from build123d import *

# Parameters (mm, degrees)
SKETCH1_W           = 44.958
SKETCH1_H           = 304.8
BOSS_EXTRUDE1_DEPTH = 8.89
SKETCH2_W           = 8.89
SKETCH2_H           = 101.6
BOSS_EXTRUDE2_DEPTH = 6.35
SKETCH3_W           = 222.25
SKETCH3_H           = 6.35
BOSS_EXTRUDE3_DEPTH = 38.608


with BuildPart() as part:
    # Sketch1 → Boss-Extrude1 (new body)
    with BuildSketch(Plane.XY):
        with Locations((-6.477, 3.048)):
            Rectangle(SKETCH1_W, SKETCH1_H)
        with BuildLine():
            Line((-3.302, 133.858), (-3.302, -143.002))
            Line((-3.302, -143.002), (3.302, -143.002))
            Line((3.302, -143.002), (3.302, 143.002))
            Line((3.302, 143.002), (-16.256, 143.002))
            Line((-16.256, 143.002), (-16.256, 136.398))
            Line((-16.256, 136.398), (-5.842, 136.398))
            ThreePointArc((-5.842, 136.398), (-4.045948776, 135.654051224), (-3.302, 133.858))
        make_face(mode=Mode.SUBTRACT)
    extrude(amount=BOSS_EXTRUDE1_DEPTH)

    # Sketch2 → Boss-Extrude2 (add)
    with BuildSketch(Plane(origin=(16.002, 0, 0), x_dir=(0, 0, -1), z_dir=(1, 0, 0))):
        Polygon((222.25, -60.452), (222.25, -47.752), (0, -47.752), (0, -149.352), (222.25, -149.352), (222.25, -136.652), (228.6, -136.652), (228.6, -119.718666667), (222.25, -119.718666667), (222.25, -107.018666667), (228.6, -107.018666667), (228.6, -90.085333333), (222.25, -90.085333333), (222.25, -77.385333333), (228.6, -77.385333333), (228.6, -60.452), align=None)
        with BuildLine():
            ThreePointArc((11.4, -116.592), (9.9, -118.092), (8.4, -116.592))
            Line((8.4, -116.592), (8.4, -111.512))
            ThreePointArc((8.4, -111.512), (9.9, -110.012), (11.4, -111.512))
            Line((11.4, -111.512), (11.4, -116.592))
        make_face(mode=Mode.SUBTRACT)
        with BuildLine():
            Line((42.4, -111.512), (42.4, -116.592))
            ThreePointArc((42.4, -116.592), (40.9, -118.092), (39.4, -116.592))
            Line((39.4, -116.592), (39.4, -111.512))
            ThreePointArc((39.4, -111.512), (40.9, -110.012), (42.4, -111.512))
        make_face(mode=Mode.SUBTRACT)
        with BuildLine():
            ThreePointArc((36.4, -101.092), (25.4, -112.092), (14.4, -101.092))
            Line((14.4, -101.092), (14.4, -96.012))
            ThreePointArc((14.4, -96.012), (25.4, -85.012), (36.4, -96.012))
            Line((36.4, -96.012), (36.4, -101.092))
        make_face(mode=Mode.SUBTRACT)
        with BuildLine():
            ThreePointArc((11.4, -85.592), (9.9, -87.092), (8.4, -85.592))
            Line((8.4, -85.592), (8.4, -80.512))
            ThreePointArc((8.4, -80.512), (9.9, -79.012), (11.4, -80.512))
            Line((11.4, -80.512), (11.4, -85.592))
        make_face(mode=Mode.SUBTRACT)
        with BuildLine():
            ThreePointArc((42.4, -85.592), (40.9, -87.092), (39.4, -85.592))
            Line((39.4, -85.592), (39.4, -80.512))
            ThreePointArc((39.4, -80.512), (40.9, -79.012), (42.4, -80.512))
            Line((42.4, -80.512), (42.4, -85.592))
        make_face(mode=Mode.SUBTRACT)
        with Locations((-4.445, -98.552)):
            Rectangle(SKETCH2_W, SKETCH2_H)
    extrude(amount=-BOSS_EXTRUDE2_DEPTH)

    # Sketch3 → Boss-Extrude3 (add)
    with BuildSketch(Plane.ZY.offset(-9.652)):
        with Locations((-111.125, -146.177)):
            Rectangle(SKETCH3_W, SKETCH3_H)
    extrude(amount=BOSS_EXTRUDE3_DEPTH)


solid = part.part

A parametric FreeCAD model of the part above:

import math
import FreeCAD as App
import Part
import Sketcher
from FreeCAD import Vector
Q = App.Units.Quantity

doc = App.newDocument("Part")
body = doc.addObject("PartDesign::Body", "Body")

sketch1 = body.newObject("Sketcher::SketchObject", "Sketch")
sketch1.AttachmentSupport = (doc.getObject("XY_Plane"), [""])
sketch1.MapMode = "FlatFace"
sketch1.addGeometry(Part.LineSegment(Vector(-29, 155.4, 0), Vector(-29, -149.4, 0)), False)
sketch1.addGeometry(Part.LineSegment(Vector(-29, -149.4, 0), Vector(16, -149.4, 0)), False)
sketch1.addGeometry(Part.LineSegment(Vector(16, -149.4, 0), Vector(16, 155.4, 0)), False)
sketch1.addGeometry(Part.LineSegment(Vector(16, 155.4, 0), Vector(-29, 155.4, 0)), False)
sketch1.addGeometry(Part.LineSegment(Vector(-3.3, -143, 0), Vector(-3.3, 133.9, 0)), False)
sketch1.addGeometry(Part.ArcOfCircle(Part.Circle(Vector(-5.8, 133.9, 0), Vector(0, 0, 1), 2.5), math.radians(0), math.radians(90)), False)
sketch1.addGeometry(Part.LineSegment(Vector(-5.8, 136.4, 0), Vector(-16.3, 136.4, 0)), False)
sketch1.addGeometry(Part.LineSegment(Vector(-16.3, 136.4, 0), Vector(-16.3, 143, 0)), False)
sketch1.addGeometry(Part.LineSegment(Vector(-16.3, 143, 0), Vector(3.3, 143, 0)), False)
sketch1.addGeometry(Part.LineSegment(Vector(3.3, 143, 0), Vector(3.3, -143, 0)), False)
sketch1.addGeometry(Part.LineSegment(Vector(3.3, -143, 0), Vector(-3.3, -143, 0)), False)
sketch1.addConstraint(Sketcher.Constraint("Coincident", 0, 2, 1, 1))
sketch1.addConstraint(Sketcher.Constraint("Coincident", 1, 2, 2, 1))
sketch1.addConstraint(Sketcher.Constraint("Coincident", 2, 2, 3, 1))
sketch1.addConstraint(Sketcher.Constraint("Coincident", 3, 2, 0, 1))
sketch1.addConstraint(Sketcher.Constraint("Tangent", 4, 2, 5, 1))
sketch1.addConstraint(Sketcher.Constraint("Tangent", 5, 2, 6, 1))
sketch1.addConstraint(Sketcher.Constraint("Coincident", 6, 2, 7, 1))
sketch1.addConstraint(Sketcher.Constraint("Coincident", 7, 2, 8, 1))
sketch1.addConstraint(Sketcher.Constraint("Coincident", 8, 2, 9, 1))
sketch1.addConstraint(Sketcher.Constraint("Coincident", 9, 2, 10, 1))
sketch1.addConstraint(Sketcher.Constraint("Coincident", 10, 2, 4, 1))
sketch1.addConstraint(Sketcher.Constraint("Vertical", 0))
sketch1.addConstraint(Sketcher.Constraint("Horizontal", 1))
sketch1.addConstraint(Sketcher.Constraint("Vertical", 2))
sketch1.addConstraint(Sketcher.Constraint("Horizontal", 3))
sketch1.addConstraint(Sketcher.Constraint("Vertical", 4))
sketch1.addConstraint(Sketcher.Constraint("Horizontal", 6))
sketch1.addConstraint(Sketcher.Constraint("Vertical", 7))
sketch1.addConstraint(Sketcher.Constraint("Horizontal", 8))
sketch1.addConstraint(Sketcher.Constraint("Vertical", 9))
sketch1.addConstraint(Sketcher.Constraint("Horizontal", 10))
sketch1.addConstraint(Sketcher.Constraint("Symmetric", 8, 2, 10, 2, -1, 1))
sketch1.addConstraint(Sketcher.Constraint("Equal", 10, 7))
sketch1.addConstraint(Sketcher.Constraint("Radius", 5, Q("0.1 in")))
sketch1.addConstraint(Sketcher.Constraint("DistanceY", 0, 2, 0, 1, Q("12 in")))
sketch1.addConstraint(Sketcher.Constraint("DistanceY", 4, 1, 4, 2, Q("10.9 in")))
sketch1.addConstraint(Sketcher.Constraint("DistanceX", 1, 1, 1, 2, Q("1.77 in")))
sketch1.addConstraint(Sketcher.Constraint("DistanceX", 6, 2, 6, 1, Q("0.41 in")))
sketch1.addConstraint(Sketcher.Constraint("DistanceX", 8, 1, 8, 2, Q("0.77 in")))
sketch1.addConstraint(Sketcher.Constraint("DistanceX", 3, 2, 6, 2, Q("0.5 in")))
sketch1.addConstraint(Sketcher.Constraint("DistanceY", 0, 2, -1, 1, Q("5.88 in")))
pad1 = body.newObject("PartDesign::Pad", "Pad")
pad1.Profile = sketch1
pad1.Length = Q("0.35 in")

sketch2 = body.newObject("Sketcher::SketchObject", "Sketch001")
sketch2.AttachmentSupport = (doc.getObject("YZ_Plane"), [""])
sketch2.MapMode = "FlatFace"
sketch2.AttachmentOffset = App.Placement(Vector(0, 0, 0.63 * 25.4), App.Rotation())
sketch2.addGeometry(Part.LineSegment(Vector(-60.5, -222.2, 0), Vector(-47.8, -222.2, 0)), False)
sketch2.addGeometry(Part.LineSegment(Vector(-47.8, -222.2, 0), Vector(-47.8, 8.9, 0)), False)
sketch2.addGeometry(Part.LineSegment(Vector(-47.8, 8.9, 0), Vector(-149.4, 8.9, 0)), False)
sketch2.addGeometry(Part.LineSegment(Vector(-149.4, 8.9, 0), Vector(-149.4, -222.2, 0)), False)
sketch2.addGeometry(Part.LineSegment(Vector(-149.4, -222.2, 0), Vector(-136.7, -222.2, 0)), False)
sketch2.addGeometry(Part.LineSegment(Vector(-136.7, -222.2, 0), Vector(-136.7, -228.6, 0)), False)
sketch2.addGeometry(Part.LineSegment(Vector(-136.7, -228.6, 0), Vector(-119.7, -228.6, 0)), False)
sketch2.addGeometry(Part.LineSegment(Vector(-119.7, -228.6, 0), Vector(-119.7, -222.2, 0)), False)
sketch2.addGeometry(Part.LineSegment(Vector(-119.7, -222.2, 0), Vector(-107, -222.2, 0)), False)
sketch2.addGeometry(Part.LineSegment(Vector(-107, -222.2, 0), Vector(-107, -228.6, 0)), False)
sketch2.addGeometry(Part.LineSegment(Vector(-107, -228.6, 0), Vector(-90.1, -228.6, 0)), False)
sketch2.addGeometry(Part.LineSegment(Vector(-90.1, -228.6, 0), Vector(-90.1, -222.2, 0)), False)
sketch2.addGeometry(Part.LineSegment(Vector(-90.1, -222.2, 0), Vector(-77.4, -222.2, 0)), False)
sketch2.addGeometry(Part.LineSegment(Vector(-77.4, -222.2, 0), Vector(-77.4, -228.6, 0)), False)
sketch2.addGeometry(Part.LineSegment(Vector(-77.4, -228.6, 0), Vector(-60.5, -228.6, 0)), False)
sketch2.addGeometry(Part.LineSegment(Vector(-60.5, -228.6, 0), Vector(-60.5, -222.2, 0)), False)
sketch2.addGeometry(Part.LineSegment(Vector(-111.5, -11.4, 0), Vector(-116.6, -11.4, 0)), False)
sketch2.addGeometry(Part.ArcOfCircle(Part.Circle(Vector(-116.6, -9.9, 0), Vector(0, 0, 1), 1.5), math.radians(90), math.radians(270)), False)
sketch2.addGeometry(Part.LineSegment(Vector(-116.6, -8.4, 0), Vector(-111.5, -8.4, 0)), False)
sketch2.addGeometry(Part.ArcOfCircle(Part.Circle(Vector(-111.5, -9.9, 0), Vector(0, 0, 1), 1.5), math.radians(-90), math.radians(90)), False)
sketch2.addGeometry(Part.ArcOfCircle(Part.Circle(Vector(-111.5, -40.9, 0), Vector(0, 0, 1), 1.5), math.radians(-90), math.radians(90)), False)
sketch2.addGeometry(Part.LineSegment(Vector(-111.5, -42.4, 0), Vector(-116.6, -42.4, 0)), False)
sketch2.addGeometry(Part.ArcOfCircle(Part.Circle(Vector(-116.6, -40.9, 0), Vector(0, 0, 1), 1.5), math.radians(90), math.radians(270)), False)
sketch2.addGeometry(Part.LineSegment(Vector(-116.6, -39.4, 0), Vector(-111.5, -39.4, 0)), False)
sketch2.addGeometry(Part.LineSegment(Vector(-96, -36.4, 0), Vector(-101.1, -36.4, 0)), False)
sketch2.addGeometry(Part.ArcOfCircle(Part.Circle(Vector(-101.1, -25.4, 0), Vector(0, 0, 1), 11), math.radians(90), math.radians(270)), False)
sketch2.addGeometry(Part.LineSegment(Vector(-101.1, -14.4, 0), Vector(-96, -14.4, 0)), False)
sketch2.addGeometry(Part.ArcOfCircle(Part.Circle(Vector(-96, -25.4, 0), Vector(0, 0, 1), 11), math.radians(-90), math.radians(90)), False)
sketch2.addGeometry(Part.LineSegment(Vector(-80.5, -11.4, 0), Vector(-85.6, -11.4, 0)), False)
sketch2.addGeometry(Part.ArcOfCircle(Part.Circle(Vector(-85.6, -9.9, 0), Vector(0, 0, 1), 1.5), math.radians(90), math.radians(270)), False)
sketch2.addGeometry(Part.LineSegment(Vector(-85.6, -8.4, 0), Vector(-80.5, -8.4, 0)), False)
sketch2.addGeometry(Part.ArcOfCircle(Part.Circle(Vector(-80.5, -9.9, 0), Vector(0, 0, 1), 1.5), math.radians(-90), math.radians(90)), False)
sketch2.addGeometry(Part.LineSegment(Vector(-80.5, -42.4, 0), Vector(-85.6, -42.4, 0)), False)
sketch2.addGeometry(Part.ArcOfCircle(Part.Circle(Vector(-85.6, -40.9, 0), Vector(0, 0, 1), 1.5), math.radians(90), math.radians(270)), False)
sketch2.addGeometry(Part.LineSegment(Vector(-85.6, -39.4, 0), Vector(-80.5, -39.4, 0)), False)
sketch2.addGeometry(Part.ArcOfCircle(Part.Circle(Vector(-80.5, -40.9, 0), Vector(0, 0, 1), 1.5), math.radians(-90), math.radians(90)), False)
sketch2.addConstraint(Sketcher.Constraint("Coincident", 0, 2, 1, 1))
sketch2.addConstraint(Sketcher.Constraint("Coincident", 1, 2, 2, 1))
sketch2.addConstraint(Sketcher.Constraint("Coincident", 2, 2, 3, 1))
sketch2.addConstraint(Sketcher.Constraint("Coincident", 3, 2, 4, 1))
sketch2.addConstraint(Sketcher.Constraint("Coincident", 4, 2, 5, 1))
sketch2.addConstraint(Sketcher.Constraint("Coincident", 5, 2, 6, 1))
sketch2.addConstraint(Sketcher.Constraint("Coincident", 6, 2, 7, 1))
sketch2.addConstraint(Sketcher.Constraint("Coincident", 7, 2, 8, 1))
sketch2.addConstraint(Sketcher.Constraint("Coincident", 8, 2, 9, 1))
sketch2.addConstraint(Sketcher.Constraint("Coincident", 9, 2, 10, 1))
sketch2.addConstraint(Sketcher.Constraint("Coincident", 10, 2, 11, 1))
sketch2.addConstraint(Sketcher.Constraint("Coincident", 11, 2, 12, 1))
sketch2.addConstraint(Sketcher.Constraint("Coincident", 12, 2, 13, 1))
sketch2.addConstraint(Sketcher.Constraint("Coincident", 13, 2, 14, 1))
sketch2.addConstraint(Sketcher.Constraint("Coincident", 14, 2, 15, 1))
sketch2.addConstraint(Sketcher.Constraint("Coincident", 15, 2, 0, 1))
sketch2.addConstraint(Sketcher.Constraint("Tangent", 16, 2, 17, 2))
sketch2.addConstraint(Sketcher.Constraint("Tangent", 17, 1, 18, 1))
sketch2.addConstraint(Sketcher.Constraint("Tangent", 18, 2, 19, 2))
sketch2.addConstraint(Sketcher.Constraint("Tangent", 19, 1, 16, 1))
sketch2.addConstraint(Sketcher.Constraint("Tangent", 20, 1, 21, 1))
sketch2.addConstraint(Sketcher.Constraint("Tangent", 21, 2, 22, 2))
sketch2.addConstraint(Sketcher.Constraint("Tangent", 22, 1, 23, 1))
sketch2.addConstraint(Sketcher.Constraint("Tangent", 23, 2, 20, 2))
sketch2.addConstraint(Sketcher.Constraint("Tangent", 24, 2, 25, 2))
sketch2.addConstraint(Sketcher.Constraint("Tangent", 25, 1, 26, 1))
sketch2.addConstraint(Sketcher.Constraint("Tangent", 26, 2, 27, 2))
sketch2.addConstraint(Sketcher.Constraint("Tangent", 27, 1, 24, 1))
sketch2.addConstraint(Sketcher.Constraint("Tangent", 28, 2, 29, 2))
sketch2.addConstraint(Sketcher.Constraint("Tangent", 29, 1, 30, 1))
sketch2.addConstraint(Sketcher.Constraint("Tangent", 30, 2, 31, 2))
sketch2.addConstraint(Sketcher.Constraint("Tangent", 31, 1, 28, 1))
sketch2.addConstraint(Sketcher.Constraint("Tangent", 32, 2, 33, 2))
sketch2.addConstraint(Sketcher.Constraint("Tangent", 33, 1, 34, 1))
sketch2.addConstraint(Sketcher.Constraint("Tangent", 34, 2, 35, 2))
sketch2.addConstraint(Sketcher.Constraint("Tangent", 35, 1, 32, 1))
sketch2.addConstraint(Sketcher.Constraint("Horizontal", 0))
sketch2.addConstraint(Sketcher.Constraint("Vertical", 1))
sketch2.addConstraint(Sketcher.Constraint("Horizontal", 2))
sketch2.addConstraint(Sketcher.Constraint("Vertical", 3))
sketch2.addConstraint(Sketcher.Constraint("Horizontal", 4))
sketch2.addConstraint(Sketcher.Constraint("Vertical", 5))
sketch2.addConstraint(Sketcher.Constraint("Horizontal", 6))
sketch2.addConstraint(Sketcher.Constraint("Vertical", 7))
sketch2.addConstraint(Sketcher.Constraint("Horizontal", 8))
sketch2.addConstraint(Sketcher.Constraint("Vertical", 9))
sketch2.addConstraint(Sketcher.Constraint("Horizontal", 10))
sketch2.addConstraint(Sketcher.Constraint("Vertical", 11))
sketch2.addConstraint(Sketcher.Constraint("Horizontal", 12))
sketch2.addConstraint(Sketcher.Constraint("Vertical", 13))
sketch2.addConstraint(Sketcher.Constraint("Horizontal", 14))
sketch2.addConstraint(Sketcher.Constraint("Vertical", 15))
sketch2.addConstraint(Sketcher.Constraint("Horizontal", 16))
sketch2.addConstraint(Sketcher.Constraint("Horizontal", 18))
sketch2.addConstraint(Sketcher.Constraint("Horizontal", 21))
sketch2.addConstraint(Sketcher.Constraint("Horizontal", 23))
sketch2.addConstraint(Sketcher.Constraint("Horizontal", 24))
sketch2.addConstraint(Sketcher.Constraint("Horizontal", 26))
sketch2.addConstraint(Sketcher.Constraint("Horizontal", 28))
sketch2.addConstraint(Sketcher.Constraint("Horizontal", 30))
sketch2.addConstraint(Sketcher.Constraint("Horizontal", 32))
sketch2.addConstraint(Sketcher.Constraint("Horizontal", 34))
sketch2.addConstraint(Sketcher.Constraint("Equal", 19, 20))
sketch2.addConstraint(Sketcher.Constraint("Equal", 22, 29))
sketch2.addConstraint(Sketcher.Constraint("Equal", 31, 33))
sketch2.addConstraint(Sketcher.Constraint("Horizontal", 19, 3, 29, 3))
sketch2.addConstraint(Sketcher.Constraint("Horizontal", 22, 3, 33, 3))
sketch2.addConstraint(Sketcher.Constraint("Horizontal", 0, 2, 3, 2))
sketch2.addConstraint(Sketcher.Constraint("Horizontal", 4, 2, 7, 2))
sketch2.addConstraint(Sketcher.Constraint("Horizontal", 6, 2, 9, 2))
sketch2.addConstraint(Sketcher.Constraint("Horizontal", 8, 2, 11, 2))
sketch2.addConstraint(Sketcher.Constraint("Horizontal", 10, 2, 13, 2))
sketch2.addConstraint(Sketcher.Constraint("Vertical", 19, 3, 20, 3))
sketch2.addConstraint(Sketcher.Constraint("Vertical", 17, 3, 22, 3))
sketch2.addConstraint(Sketcher.Constraint("Vertical", 29, 3, 33, 3))
sketch2.addConstraint(Sketcher.Constraint("Vertical", 31, 3, 35, 3))
sketch2.addConstraint(Sketcher.Constraint("Equal", 0, 4))
sketch2.addConstraint(Sketcher.Constraint("Equal", 4, 8))
sketch2.addConstraint(Sketcher.Constraint("Equal", 6, 10))
sketch2.addConstraint(Sketcher.Constraint("Equal", 8, 12))
sketch2.addConstraint(Sketcher.Constraint("Equal", 10, 14))
sketch2.addConstraint(Sketcher.Constraint("Equal", 23, 24))
sketch2.addConstraint(Sketcher.Constraint("Equal", 26, 28))
sketch2.addConstraint(Sketcher.Constraint("DistanceX", 2, 2, 2, 1, Q("4 in")))
sketch2.addConstraint(Sketcher.Constraint("DistanceX", 0, 1, 0, 2, Q("0.5 in")))
sketch2.addConstraint(Sketcher.Constraint("DistanceX", 16, 2, 16, 1, Q("0.2 in")))
sketch2.addConstraint(Sketcher.Constraint("DistanceY", 1, 1, 1, 2, Q("9.1 in")))
sketch2.addConstraint(Sketcher.Constraint("DistanceY", 25, 3, -1, 1, Q("1 in")))
sketch2.addConstraint(Sketcher.Constraint("DistanceY", 5, 2, -1, 1, Q("9 in")))
sketch2.addConstraint(Sketcher.Constraint("DistanceY", 5, 2, 5, 1, Q("0.25 in")))
sketch2.addConstraint(Sketcher.Constraint("DistanceX", 27, 3, 0, 2, Q("1.9 in")))
sketch2.addConstraint(Sketcher.Constraint("DistanceX", 25, 3, -1, 1, Q("3.98 in")))
sketch2.addConstraint(Sketcher.Constraint("Radius", 17, Q("1.5 mm")))
sketch2.addConstraint(Sketcher.Constraint("Radius", 25, Q("11 mm")))
sketch2.addConstraint(Sketcher.Constraint("DistanceX", 17, 3, -1, 1, Q("116.592 mm")))
sketch2.addConstraint(Sketcher.Constraint("DistanceY", 17, 3, -1, 1, Q("9.9 mm")))
sketch2.addConstraint(Sketcher.Constraint("DistanceY", 20, 3, -1, 1, Q("40.9 mm")))
sketch2.addConstraint(Sketcher.Constraint("DistanceX", 29, 3, -1, 1, Q("85.592 mm")))
pad2 = body.newObject("PartDesign::Pad", "Pad001")
pad2.Profile = sketch2
pad2.Length = Q("0.25 in")
pad2.Reversed = True

sketch3 = body.newObject("Sketcher::SketchObject", "Sketch002")
sketch3.AttachmentSupport = (doc.getObject("YZ_Plane"), [""])
sketch3.MapMode = "FlatFace"
sketch3.AttachmentOffset = App.Placement(Vector(0, 0, 0.38 * 25.4), App.Rotation())
sketch3.addGeometry(Part.LineSegment(Vector(-143, -222, 0), Vector(-149, -222, 0)), False)
sketch3.addGeometry(Part.LineSegment(Vector(-149, -222, 0), Vector(-149, 0, 0)), False)
sketch3.addGeometry(Part.LineSegment(Vector(-149, 0, 0), Vector(-143, 0, 0)), False)
sketch3.addGeometry(Part.LineSegment(Vector(-143, 0, 0), Vector(-143, -222, 0)), False)
sketch3.addConstraint(Sketcher.Constraint("Coincident", 0, 2, 1, 1))
sketch3.addConstraint(Sketcher.Constraint("Coincident", 1, 2, 2, 1))
sketch3.addConstraint(Sketcher.Constraint("Coincident", 2, 2, 3, 1))
sketch3.addConstraint(Sketcher.Constraint("Coincident", 3, 2, 0, 1))
sketch3.addConstraint(Sketcher.Constraint("Horizontal", 0))
sketch3.addConstraint(Sketcher.Constraint("Vertical", 1))
sketch3.addConstraint(Sketcher.Constraint("Horizontal", 2))
sketch3.addConstraint(Sketcher.Constraint("Vertical", 3))
sketch3.addConstraint(Sketcher.Constraint("PointOnObject", 1, 2, -1))
sketch3.addConstraint(Sketcher.Constraint("DistanceX", 0, 2, 0, 1, Q("0.25 in")))
sketch3.addConstraint(Sketcher.Constraint("DistanceY", 1, 1, 1, 2, Q("8.75 in")))
sketch3.addConstraint(Sketcher.Constraint("DistanceX", 0, 2, -1, 1, Q("5.88 in")))
pad3 = body.newObject("PartDesign::Pad", "Pad002")
pad3.Profile = sketch3
pad3.Length = Q("1.52 in")
pad3.Reversed = True

doc.recompute()
